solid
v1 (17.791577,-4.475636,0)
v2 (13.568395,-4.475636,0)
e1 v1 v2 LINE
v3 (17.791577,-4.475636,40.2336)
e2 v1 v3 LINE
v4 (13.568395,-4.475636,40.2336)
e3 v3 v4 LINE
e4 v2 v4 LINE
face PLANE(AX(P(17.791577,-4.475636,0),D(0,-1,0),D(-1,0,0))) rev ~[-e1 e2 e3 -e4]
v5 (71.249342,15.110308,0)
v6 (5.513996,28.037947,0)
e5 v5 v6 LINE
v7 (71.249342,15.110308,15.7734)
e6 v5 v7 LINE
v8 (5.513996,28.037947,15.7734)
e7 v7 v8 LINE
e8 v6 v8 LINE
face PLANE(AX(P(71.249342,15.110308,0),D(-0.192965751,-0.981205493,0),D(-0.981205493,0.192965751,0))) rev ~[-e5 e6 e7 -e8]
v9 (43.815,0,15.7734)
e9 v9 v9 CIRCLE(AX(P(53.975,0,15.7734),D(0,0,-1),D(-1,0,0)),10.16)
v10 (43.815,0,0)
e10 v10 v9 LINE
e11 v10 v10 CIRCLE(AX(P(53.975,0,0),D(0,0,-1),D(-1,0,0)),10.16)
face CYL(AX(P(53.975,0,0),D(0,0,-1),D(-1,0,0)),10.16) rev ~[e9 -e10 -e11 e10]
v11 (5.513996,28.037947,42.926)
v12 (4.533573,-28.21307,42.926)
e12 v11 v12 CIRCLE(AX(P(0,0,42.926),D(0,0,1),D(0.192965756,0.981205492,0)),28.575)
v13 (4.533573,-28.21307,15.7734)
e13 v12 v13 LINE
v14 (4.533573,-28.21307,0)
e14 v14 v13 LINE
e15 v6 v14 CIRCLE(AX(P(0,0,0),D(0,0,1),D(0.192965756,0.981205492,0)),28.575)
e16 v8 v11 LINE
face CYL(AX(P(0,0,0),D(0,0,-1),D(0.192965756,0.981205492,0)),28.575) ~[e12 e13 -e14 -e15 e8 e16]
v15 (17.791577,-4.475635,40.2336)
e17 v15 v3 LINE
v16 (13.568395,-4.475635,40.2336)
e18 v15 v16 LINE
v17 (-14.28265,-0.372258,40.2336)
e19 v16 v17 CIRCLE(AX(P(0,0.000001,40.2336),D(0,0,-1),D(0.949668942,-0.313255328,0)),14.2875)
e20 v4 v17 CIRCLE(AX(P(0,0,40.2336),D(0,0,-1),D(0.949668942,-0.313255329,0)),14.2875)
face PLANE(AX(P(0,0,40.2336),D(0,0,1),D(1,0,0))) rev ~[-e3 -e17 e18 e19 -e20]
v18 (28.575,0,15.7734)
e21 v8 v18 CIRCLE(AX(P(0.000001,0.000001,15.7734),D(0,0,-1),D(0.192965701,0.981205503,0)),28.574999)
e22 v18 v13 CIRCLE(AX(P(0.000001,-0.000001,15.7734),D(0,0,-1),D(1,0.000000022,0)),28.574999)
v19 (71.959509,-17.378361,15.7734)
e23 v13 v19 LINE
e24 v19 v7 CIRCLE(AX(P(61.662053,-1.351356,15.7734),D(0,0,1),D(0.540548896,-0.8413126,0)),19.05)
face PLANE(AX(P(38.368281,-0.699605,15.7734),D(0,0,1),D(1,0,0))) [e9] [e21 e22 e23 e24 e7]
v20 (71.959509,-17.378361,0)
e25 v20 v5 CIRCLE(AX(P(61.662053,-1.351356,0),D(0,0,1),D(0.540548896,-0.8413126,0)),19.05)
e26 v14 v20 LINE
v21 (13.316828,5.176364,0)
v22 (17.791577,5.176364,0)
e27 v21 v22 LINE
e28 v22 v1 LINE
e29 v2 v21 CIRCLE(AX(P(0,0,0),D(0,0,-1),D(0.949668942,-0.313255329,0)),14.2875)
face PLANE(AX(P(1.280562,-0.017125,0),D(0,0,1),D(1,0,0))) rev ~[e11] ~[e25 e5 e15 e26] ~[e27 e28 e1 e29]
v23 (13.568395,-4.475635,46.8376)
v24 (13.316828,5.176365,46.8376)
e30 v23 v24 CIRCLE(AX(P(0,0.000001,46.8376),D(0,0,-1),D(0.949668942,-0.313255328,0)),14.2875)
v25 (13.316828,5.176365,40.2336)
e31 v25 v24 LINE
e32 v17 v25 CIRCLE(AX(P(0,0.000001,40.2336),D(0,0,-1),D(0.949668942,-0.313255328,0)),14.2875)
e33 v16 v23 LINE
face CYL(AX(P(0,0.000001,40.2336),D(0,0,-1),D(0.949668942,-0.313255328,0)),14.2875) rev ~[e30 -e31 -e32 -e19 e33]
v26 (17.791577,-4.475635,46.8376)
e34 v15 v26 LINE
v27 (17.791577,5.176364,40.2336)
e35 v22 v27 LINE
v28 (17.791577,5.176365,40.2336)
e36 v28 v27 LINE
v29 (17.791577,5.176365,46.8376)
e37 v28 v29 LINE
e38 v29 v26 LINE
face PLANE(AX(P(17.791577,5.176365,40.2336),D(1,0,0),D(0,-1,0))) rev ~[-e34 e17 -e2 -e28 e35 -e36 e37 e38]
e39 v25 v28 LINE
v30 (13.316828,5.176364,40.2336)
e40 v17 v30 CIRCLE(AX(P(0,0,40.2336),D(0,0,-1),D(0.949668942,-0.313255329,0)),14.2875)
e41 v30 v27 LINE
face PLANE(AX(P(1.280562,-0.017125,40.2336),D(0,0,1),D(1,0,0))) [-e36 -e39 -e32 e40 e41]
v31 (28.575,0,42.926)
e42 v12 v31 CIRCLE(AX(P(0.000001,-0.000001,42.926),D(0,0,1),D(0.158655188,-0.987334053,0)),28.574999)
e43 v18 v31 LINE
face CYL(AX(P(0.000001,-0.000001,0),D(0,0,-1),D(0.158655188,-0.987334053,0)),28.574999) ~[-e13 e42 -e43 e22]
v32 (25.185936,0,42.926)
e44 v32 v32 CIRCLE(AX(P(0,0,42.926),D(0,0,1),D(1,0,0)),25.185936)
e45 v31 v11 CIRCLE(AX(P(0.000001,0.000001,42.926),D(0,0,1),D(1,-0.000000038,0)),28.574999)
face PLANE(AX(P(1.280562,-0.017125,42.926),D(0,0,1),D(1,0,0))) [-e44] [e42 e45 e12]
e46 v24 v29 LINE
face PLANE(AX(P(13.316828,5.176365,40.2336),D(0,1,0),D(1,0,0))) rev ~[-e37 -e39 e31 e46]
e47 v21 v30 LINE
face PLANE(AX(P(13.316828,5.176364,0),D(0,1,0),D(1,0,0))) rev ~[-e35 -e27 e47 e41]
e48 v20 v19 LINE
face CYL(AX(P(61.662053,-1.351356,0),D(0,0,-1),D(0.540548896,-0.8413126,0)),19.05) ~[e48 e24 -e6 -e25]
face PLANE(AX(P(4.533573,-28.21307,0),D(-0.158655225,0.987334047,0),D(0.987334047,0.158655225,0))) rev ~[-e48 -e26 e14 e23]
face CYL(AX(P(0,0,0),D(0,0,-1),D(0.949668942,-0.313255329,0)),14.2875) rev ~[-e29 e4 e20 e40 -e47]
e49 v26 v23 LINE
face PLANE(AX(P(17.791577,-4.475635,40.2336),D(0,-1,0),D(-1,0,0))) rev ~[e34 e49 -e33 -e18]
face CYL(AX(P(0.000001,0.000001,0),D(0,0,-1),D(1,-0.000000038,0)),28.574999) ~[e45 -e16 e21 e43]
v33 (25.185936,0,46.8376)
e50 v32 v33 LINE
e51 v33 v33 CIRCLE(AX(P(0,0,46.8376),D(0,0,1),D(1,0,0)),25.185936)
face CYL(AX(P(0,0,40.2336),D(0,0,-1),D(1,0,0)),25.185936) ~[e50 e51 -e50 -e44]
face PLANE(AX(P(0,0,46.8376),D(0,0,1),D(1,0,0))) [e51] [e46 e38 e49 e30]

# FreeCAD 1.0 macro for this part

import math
import FreeCAD as App
import Part
import Sketcher
Q = App.Units.Quantity

doc = App.newDocument("Part")
body = doc.addObject("PartDesign::Body", "Body")

# Sketch on XY plane
sketch1 = doc.addObject("Sketcher::SketchObject", "Sketch")
body.addObject(sketch1)
sketch1.AttachmentSupport = (doc.XY_Plane, [""])
sketch1.MapMode = "FlatFace"
sketch1.addGeometry(Part.ArcOfCircle(Part.Circle(App.Vector(0.000001, 0.000001, 0), App.Vector(0, 0, 1), 28.574999), math.radians(-0.000002), math.radians(78.87409)), False)
sketch1.addGeometry(Part.ArcOfCircle(Part.Circle(App.Vector(0.000001, -0.000001, 0), App.Vector(0, 0, 1), 28.574999), math.radians(-80.871153), math.radians(0.000001)), False)
sketch1.addGeometry(Part.LineSegment(App.Vector(4.533573, -28.21307, 0), App.Vector(71.959509, -17.378361, 0)), False)
sketch1.addGeometry(Part.ArcOfCircle(Part.Circle(App.Vector(61.662053, -1.351356, 0), App.Vector(0, 0, 1), 19.05), math.radians(-57.278988), math.radians(59.783436)), False)
sketch1.addGeometry(Part.LineSegment(App.Vector(71.249342, 15.110308, 0), App.Vector(5.513996, 28.037947, 0)), False)
sketch1.addGeometry(Part.Circle(App.Vector(53.975, 0, 0), App.Vector(0, 0, 1), 10.16), False)
sketch1.addConstraint(Sketcher.Constraint("Coincident", 0, 1, 1, 2))
sketch1.addConstraint(Sketcher.Constraint("Coincident", 1, 1, 2, 1))
sketch1.addConstraint(Sketcher.Constraint("Coincident", 2, 2, 3, 1))
sketch1.addConstraint(Sketcher.Constraint("Coincident", 3, 2, 4, 1))
sketch1.addConstraint(Sketcher.Constraint("Coincident", 4, 2, 0, 2))
sketch1.addConstraint(Sketcher.Constraint("Coincident", 0, 3, -1, 1))
sketch1.addConstraint(Sketcher.Constraint("Coincident", 1, 3, -1, 1))
sketch1.addConstraint(Sketcher.Constraint("PointOnObject", 5, 3, -1))
sketch1.addConstraint(Sketcher.Constraint("PointOnObject", 0, 1, -1))
sketch1.addConstraint(Sketcher.Constraint("Diameter", 5, Q("0.8 in")))
sketch1.addConstraint(Sketcher.Constraint("Radius", 3, Q("0.75 in")))
sketch1.addConstraint(Sketcher.Constraint("Radius", 0, Q("1.1249999 in")))
sketch1.addConstraint(Sketcher.Constraint("DistanceX", 0, 1, 5, 3, Q("1 in")))
sketch1.addConstraint(Sketcher.Constraint("DistanceY", 1, 1, -1, 1, 28.21307))
sketch1.addConstraint(Sketcher.Constraint("DistanceX", -1, 1, 2, 2, 71.959509))
sketch1.addConstraint(Sketcher.Constraint("DistanceY", 2, 2, -1, 1, 17.378361))
sketch1.addConstraint(Sketcher.Constraint("DistanceX", -1, 1, 3, 2, 71.249342))
sketch1.addConstraint(Sketcher.Constraint("DistanceX", 0, 3, 3, 3, 61.662051))
sketch1.addConstraint(Sketcher.Constraint("Distance", 4, 66.994474))
pad1 = doc.addObject("PartDesign::Pad", "Pad")
body.addObject(pad1)
pad1.Profile = sketch1
pad1.Length = Q("0.621 in")

# Sketch on XY plane
sketch2 = doc.addObject("Sketcher::SketchObject", "Sketch001")
body.addObject(sketch2)
sketch2.AttachmentSupport = (doc.XY_Plane, [""])
sketch2.MapMode = "FlatFace"
sketch2.addGeometry(Part.ArcOfCircle(Part.Circle(App.Vector(0, 0, 0), App.Vector(0, 0, 1), 28.6), math.radians(-81), math.radians(0)), False)
sketch2.addGeometry(Part.ArcOfCircle(Part.Circle(App.Vector(0, 0, 0), App.Vector(0, 0, 1), 28.6), math.radians(0), math.radians(79)), False)
sketch2.addGeometry(Part.ArcOfCircle(Part.Circle(App.Vector(0, 0, 0), App.Vector(0, 0, 1), 28.6), math.radians(79), math.radians(279)), False)
sketch2.addGeometry(Part.LineSegment(App.Vector(17.8, -4.5, 0), App.Vector(13.6, -4.5, 0)), False)
sketch2.addGeometry(Part.ArcOfCircle(Part.Circle(App.Vector(0, 0, 0), App.Vector(0, 0, 1), 14.3), math.radians(21), math.radians(342)), False)
sketch2.addGeometry(Part.LineSegment(App.Vector(13.3, 5.2, 0), App.Vector(17.8, 5.2, 0)), False)
sketch2.addGeometry(Part.LineSegment(App.Vector(17.8, 5.2, 0), App.Vector(17.8, -4.5, 0)), False)
sketch2.addConstraint(Sketcher.Constraint("Tangent", 0, 2, 1, 1))
sketch2.addConstraint(Sketcher.Constraint("Tangent", 1, 2, 2, 1))
sketch2.addConstraint(Sketcher.Constraint("Tangent", 2, 2, 0, 1))
sketch2.addConstraint(Sketcher.Constraint("Coincident", 3, 2, 4, 2))
sketch2.addConstraint(Sketcher.Constraint("Coincident", 4, 1, 5, 1))
sketch2.addConstraint(Sketcher.Constraint("Coincident", 5, 2, 6, 1))
sketch2.addConstraint(Sketcher.Constraint("Coincident", 6, 2, 3, 1))
sketch2.addConstraint(Sketcher.Constraint("Horizontal", 3))
sketch2.addConstraint(Sketcher.Constraint("Horizontal", 5))
sketch2.addConstraint(Sketcher.Constraint("Vertical", 6))
sketch2.addConstraint(Sketcher.Constraint("Coincident", 0, 3, -1, 1))
sketch2.addConstraint(Sketcher.Constraint("Coincident", 4, 3, -1, 1))
sketch2.addConstraint(Sketcher.Constraint("PointOnObject", 0, 2, -1))
sketch2.addConstraint(Sketcher.Constraint("Radius", 0, Q("1.125 in")))
sketch2.addConstraint(Sketcher.Constraint("Radius", 4, Q("0.5625 in")))
sketch2.addConstraint(Sketcher.Constraint("DistanceY", 6, 2, 6, 1, Q("0.38 in")))
sketch2.addConstraint(Sketcher.Constraint("DistanceX", 3, 2, 3, 1, 4.223182))
sketch2.addConstraint(Sketcher.Constraint("DistanceX", 5, 1, 5, 2, 4.474749))
sketch2.addConstraint(Sketcher.Constraint("DistanceY", 2, 2, -1, 1, 28.21307))
sketch2.addConstraint(Sketcher.Constraint("DistanceX", -1, 1, 1, 2, 5.513996))
pad2 = doc.addObject("PartDesign::Pad", "Pad001")
body.addObject(pad2)
pad2.Profile = sketch2
pad2.Length = Q("1.584 in")

# Sketch on XY plane
sketch3 = doc.addObject("Sketcher::SketchObject", "Sketch002")
body.addObject(sketch3)
sketch3.AttachmentSupport = (doc.XY_Plane, [""])
sketch3.MapMode = "FlatFace"
sketch3.addGeometry(Part.ArcOfCircle(Part.Circle(App.Vector(0, 0, 0), App.Vector(0, 0, 1), 29), math.radians(-81), math.radians(0)), False)
sketch3.addGeometry(Part.ArcOfCircle(Part.Circle(App.Vector(0, 0, 0), App.Vector(0, 0, 1), 29), math.radians(0), math.radians(79)), False)
sketch3.addGeometry(Part.ArcOfCircle(Part.Circle(App.Vector(0, 0, 0), App.Vector(0, 0, 1), 29), math.radians(79), math.radians(279)), False)
sketch3.addGeometry(Part.Circle(App.Vector(0, 0, 0), App.Vector(0, 0, 1), 25), False)
sketch3.addConstraint(Sketcher.Constraint("Tangent", 0, 2, 1, 1))
sketch3.addConstraint(Sketcher.Constraint("Tangent", 1, 2, 2, 1))
sketch3.addConstraint(Sketcher.Constraint("Tangent", 2, 2, 0, 1))
sketch3.addConstraint(Sketcher.Constraint("Coincident", 0, 3, -1, 1))
sketch3.addConstraint(Sketcher.Constraint("Coincident", 3, 3, -1, 1))
sketch3.addConstraint(Sketcher.Constraint("PointOnObject", 0, 2, -1))
sketch3.addConstraint(Sketcher.Constraint("Radius", 0, Q("1.125 in")))
sketch3.addConstraint(Sketcher.Constraint("Diameter", 3, 50.371872))
sketch3.addConstraint(Sketcher.Constraint("DistanceY", 2, 2, -1, 1, 28.21307))
sketch3.addConstraint(Sketcher.Constraint("DistanceX", -1, 1, 1, 2, 5.513996))
pad3 = doc.addObject("PartDesign::Pad", "Pad002")
body.addObject(pad3)
pad3.Profile = sketch3
pad3.Length = Q("1.69 in")

# Sketch on XY plane
sketch4 = doc.addObject("Sketcher::SketchObject", "Sketch003")
body.addObject(sketch4)
sketch4.AttachmentSupport = (doc.XY_Plane, [""])
sketch4.MapMode = "FlatFace"
sketch4.AttachmentOffset = App.Placement(App.Vector(0, 0, 1.584 * 25.4), App.Rotation())
sketch4.addGeometry(Part.Circle(App.Vector(0, 0, 0), App.Vector(0, 0, 1), 25.2), False)
sketch4.addGeometry(Part.LineSegment(App.Vector(17.8, 5.2, 0), App.Vector(17.8, -4.5, 0)), False)
sketch4.addGeometry(Part.LineSegment(App.Vector(17.8, -4.5, 0), App.Vector(13.6, -4.5, 0)), False)
sketch4.addGeometry(Part.ArcOfCircle(Part.Circle(App.Vector(0, 0, 0), App.Vector(0, 0, 1), 14.3), math.radians(21), math.radians(342)), False)
sketch4.addGeometry(Part.LineSegment(App.Vector(13.3, 5.2, 0), App.Vector(17.8, 5.2, 0)), False)
sketch4.addConstraint(Sketcher.Constraint("Coincident", 1, 2, 2, 1))
sketch4.addConstraint(Sketcher.Constraint("Coincident", 2, 2, 3, 2))
sketch4.addConstraint(Sketcher.Constraint("Coincident", 3, 1, 4, 1))
sketch4.addConstraint(Sketcher.Constraint("Coincident", 4, 2, 1, 1))
sketch4.addConstraint(Sketcher.Constraint("Vertical", 1))
sketch4.addConstraint(Sketcher.Constraint("Horizontal", 2))
sketch4.addConstraint(Sketcher.Constraint("Horizontal", 4))
sketch4.addConstraint(Sketcher.Constraint("Coincident", 0, 3, -1, 1))
sketch4.addConstraint(Sketcher.Constraint("Coincident", 3, 3, -1, 1))
sketch4.addConstraint(Sketcher.Constraint("Radius", 3, Q("0.5625 in")))
sketch4.addConstraint(Sketcher.Constraint("DistanceY", 1, 2, 1, 1, Q("0.38 in")))
sketch4.addConstraint(Sketcher.Constraint("Diameter", 0, 50.371872))
sketch4.addConstraint(Sketcher.Constraint("DistanceX", 2, 2, 2, 1, 4.223182))
sketch4.addConstraint(Sketcher.Constraint("DistanceX", 4, 1, 4, 2, 4.474749))
pad4 = doc.addObject("PartDesign::Pad", "Pad003")
body.addObject(pad4)
pad4.Profile = sketch4
pad4.Length = Q("0.26 in")

doc.recompute()
